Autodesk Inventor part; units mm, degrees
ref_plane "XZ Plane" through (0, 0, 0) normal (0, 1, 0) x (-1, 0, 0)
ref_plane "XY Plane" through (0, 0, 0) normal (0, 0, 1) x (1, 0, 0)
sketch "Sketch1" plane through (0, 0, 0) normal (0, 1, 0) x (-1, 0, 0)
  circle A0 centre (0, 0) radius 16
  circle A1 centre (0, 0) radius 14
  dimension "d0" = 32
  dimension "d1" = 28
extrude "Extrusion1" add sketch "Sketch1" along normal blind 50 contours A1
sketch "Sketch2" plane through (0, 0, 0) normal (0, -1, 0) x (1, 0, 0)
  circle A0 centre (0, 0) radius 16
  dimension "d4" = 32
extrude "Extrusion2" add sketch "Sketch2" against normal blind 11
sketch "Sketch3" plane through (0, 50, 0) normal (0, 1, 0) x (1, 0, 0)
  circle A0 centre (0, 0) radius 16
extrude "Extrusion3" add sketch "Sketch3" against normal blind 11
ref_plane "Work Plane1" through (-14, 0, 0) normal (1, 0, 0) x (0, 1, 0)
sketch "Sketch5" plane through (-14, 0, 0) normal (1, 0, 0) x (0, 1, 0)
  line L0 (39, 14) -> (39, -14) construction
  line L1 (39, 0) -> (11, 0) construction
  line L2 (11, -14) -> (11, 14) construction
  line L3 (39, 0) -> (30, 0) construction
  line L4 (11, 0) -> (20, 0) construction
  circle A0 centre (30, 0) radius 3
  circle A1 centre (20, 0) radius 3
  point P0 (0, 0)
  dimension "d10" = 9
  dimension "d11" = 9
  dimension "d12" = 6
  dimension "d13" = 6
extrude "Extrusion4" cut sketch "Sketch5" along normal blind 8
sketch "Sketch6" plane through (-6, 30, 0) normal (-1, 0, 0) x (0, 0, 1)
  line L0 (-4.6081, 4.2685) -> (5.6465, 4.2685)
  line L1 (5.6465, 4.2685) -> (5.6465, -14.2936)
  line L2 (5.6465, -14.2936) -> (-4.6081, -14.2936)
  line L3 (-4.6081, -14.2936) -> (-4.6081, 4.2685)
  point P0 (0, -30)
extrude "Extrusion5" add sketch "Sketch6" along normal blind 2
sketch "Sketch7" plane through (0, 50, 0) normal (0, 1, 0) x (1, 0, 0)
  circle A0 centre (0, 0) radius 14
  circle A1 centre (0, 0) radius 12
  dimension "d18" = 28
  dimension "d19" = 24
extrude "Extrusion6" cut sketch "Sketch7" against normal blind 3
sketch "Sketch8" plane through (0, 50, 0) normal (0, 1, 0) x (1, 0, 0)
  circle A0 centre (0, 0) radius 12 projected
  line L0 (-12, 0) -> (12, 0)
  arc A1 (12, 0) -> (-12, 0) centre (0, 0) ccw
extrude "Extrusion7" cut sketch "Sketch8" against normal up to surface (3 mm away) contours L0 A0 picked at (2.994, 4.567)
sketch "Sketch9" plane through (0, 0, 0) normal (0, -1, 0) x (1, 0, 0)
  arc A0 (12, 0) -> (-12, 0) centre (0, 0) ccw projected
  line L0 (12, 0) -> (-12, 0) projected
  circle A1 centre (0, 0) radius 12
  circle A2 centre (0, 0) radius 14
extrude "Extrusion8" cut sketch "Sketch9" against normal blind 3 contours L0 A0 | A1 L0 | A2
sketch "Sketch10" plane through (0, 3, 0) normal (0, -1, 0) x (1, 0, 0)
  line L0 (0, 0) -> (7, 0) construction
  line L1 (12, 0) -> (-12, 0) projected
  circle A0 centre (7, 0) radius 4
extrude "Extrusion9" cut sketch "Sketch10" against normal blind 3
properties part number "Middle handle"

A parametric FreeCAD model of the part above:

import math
import FreeCAD as App
import Part
import Sketcher
from FreeCAD import Vector
Q = App.Units.Quantity

doc = App.newDocument("Part")
params = doc.addObject("Spreadsheet::Sheet", "Params")
for row, (alias, value) in enumerate([
    ("sketch1_diameter", "28 mm"),
    ("pad1_length", "50 mm"),
    ("sketch2_diameter", "32 mm"),
    ("pad2_length", "11 mm"),
    ("sketch3_diameter", "32 mm"),
    ("pad3_length", "11 mm"),
    ("sketch4_diameter", "6 mm"),
    ("pocket1_length", "8 mm"),
    ("pad4_length", "2 mm"),
    ("sketch6_diameter", "28 mm"),
    ("sketch6_diameter2", "24 mm"),
    ("pocket2_length", "3 mm"),
    ("sketch7_radius", "12 mm"),
    ("pocket3_length", "3 mm"),
    ("sketch8_diameter", "28 mm"),
    ("pocket4_length", "3 mm"),
    ("sketch9_diameter", "8 mm"),
    ("pocket5_length", "3 mm"),
], start=1):
    params.set(f"A{row}", alias)
    params.set(f"B{row}", "=" + value)
    params.setAlias(f"B{row}", alias)

body = doc.addObject("PartDesign::Body", "Body")

# Sketch on XZ plane
sketch1 = body.newObject("Sketcher::SketchObject", "Sketch")
sketch1.AttachmentSupport = (doc.getObject("XZ_Plane"), [""])
sketch1.MapMode = "FlatFace"
sketch1.addGeometry(Part.Circle(Vector(0, 0, 0), Vector(0, 0, 1), 14), False)
sketch1.addConstraint(Sketcher.Constraint("Coincident", 0, 3, -1, 1))
sketch1.addConstraint(Sketcher.Constraint("Diameter", 0, Q("28 mm")))
sketch1.setExpression("Constraints[1]", "Params.sketch1_diameter")
pad1 = body.newObject("PartDesign::Pad", "Pad")
pad1.Profile = sketch1
pad1.setExpression("Length", "Params.pad1_length")
pad1.Reversed = True

# Sketch on XZ plane
sketch2 = body.newObject("Sketcher::SketchObject", "Sketch001")
sketch2.AttachmentSupport = (doc.getObject("XZ_Plane"), [""])
sketch2.MapMode = "FlatFace"
sketch2.addGeometry(Part.Circle(Vector(0, 0, 0), Vector(0, 0, 1), 16), False)
sketch2.addConstraint(Sketcher.Constraint("Coincident", 0, 3, -1, 1))
sketch2.addConstraint(Sketcher.Constraint("Diameter", 0, Q("32 mm")))
sketch2.setExpression("Constraints[1]", "Params.sketch2_diameter")
pad2 = body.newObject("PartDesign::Pad", "Pad001")
pad2.Profile = sketch2
pad2.setExpression("Length", "Params.pad2_length")
pad2.Reversed = True

# Sketch on XZ plane
sketch3 = body.newObject("Sketcher::SketchObject", "Sketch002")
sketch3.AttachmentSupport = (doc.getObject("XZ_Plane"), [""])
sketch3.MapMode = "FlatFace"
sketch3.AttachmentOffset = App.Placement(Vector(0, 0, -50), App.Rotation())
sketch3.addGeometry(Part.Circle(Vector(0, 0, 0), Vector(0, 0, 1), 16), False)
sketch3.addConstraint(Sketcher.Constraint("Coincident", 0, 3, -1, 1))
sketch3.addConstraint(Sketcher.Constraint("Diameter", 0, Q("32 mm")))
sketch3.setExpression("Constraints[1]", "Params.sketch3_diameter")
pad3 = body.newObject("PartDesign::Pad", "Pad002")
pad3.Profile = sketch3
pad3.setExpression("Length", "Params.pad3_length")

# Sketch on YZ plane
sketch4 = body.newObject("Sketcher::SketchObject", "Sketch003")
sketch4.AttachmentSupport = (doc.getObject("YZ_Plane"), [""])
sketch4.MapMode = "FlatFace"
sketch4.AttachmentOffset = App.Placement(Vector(0, 0, -14), App.Rotation())
sketch4.addGeometry(Part.Circle(Vector(30, 0, 0), Vector(0, 0, 1), 3), False)
sketch4.addGeometry(Part.Circle(Vector(20, 0, 0), Vector(0, 0, 1), 3), False)
sketch4.addConstraint(Sketcher.Constraint("Equal", 0, 1))
sketch4.addConstraint(Sketcher.Constraint("PointOnObject", 0, 3, -1))
sketch4.addConstraint(Sketcher.Constraint("PointOnObject", 1, 3, -1))
sketch4.addConstraint(Sketcher.Constraint("Diameter", 0, Q("6 mm")))
sketch4.addConstraint(Sketcher.Constraint("DistanceX", -1, 1, 0, 3, Q("30 mm")))
sketch4.addConstraint(Sketcher.Constraint("DistanceX", -1, 1, 1, 3, Q("20 mm")))
sketch4.setExpression("Constraints[3]", "Params.sketch4_diameter")
pocket1 = body.newObject("PartDesign::Pocket", "Pocket")
pocket1.Profile = sketch4
pocket1.setExpression("Length", "Params.pocket1_length")
pocket1.Reversed = True

# Sketch on YZ plane
sketch5 = body.newObject("Sketcher::SketchObject", "Sketch004")
sketch5.AttachmentSupport = (doc.getObject("YZ_Plane"), [""])
sketch5.MapMode = "FlatFace"
sketch5.AttachmentOffset = App.Placement(Vector(0, 0, -6), App.Rotation())
sketch5.addGeometry(Part.LineSegment(Vector(34, 6, 0), Vector(34, -5, 0)), False)
sketch5.addGeometry(Part.LineSegment(Vector(34, -5, 0), Vector(16, -5, 0)), False)
sketch5.addGeometry(Part.LineSegment(Vector(16, -5, 0), Vector(16, 6, 0)), False)
sketch5.addGeometry(Part.LineSegment(Vector(16, 6, 0), Vector(34, 6, 0)), False)
sketch5.addConstraint(Sketcher.Constraint("Coincident", 0, 2, 1, 1))
sketch5.addConstraint(Sketcher.Constraint("Coincident", 1, 2, 2, 1))
sketch5.addConstraint(Sketcher.Constraint("Coincident", 2, 2, 3, 1))
sketch5.addConstraint(Sketcher.Constraint("Coincident", 3, 2, 0, 1))
sketch5.addConstraint(Sketcher.Constraint("Vertical", 0))
sketch5.addConstraint(Sketcher.Constraint("Horizontal", 1))
sketch5.addConstraint(Sketcher.Constraint("Vertical", 2))
sketch5.addConstraint(Sketcher.Constraint("Horizontal", 3))
sketch5.addConstraint(Sketcher.Constraint("DistanceX", 1, 2, 1, 1, Q("18.562 mm")))
sketch5.addConstraint(Sketcher.Constraint("DistanceY", 0, 2, 0, 1, Q("10.2546 mm")))
sketch5.addConstraint(Sketcher.Constraint("DistanceY", 0, 2, -1, 1, Q("4.608 mm")))
sketch5.addConstraint(Sketcher.Constraint("DistanceX", -1, 1, 0, 2, Q("34.2685 mm")))
pad4 = body.newObject("PartDesign::Pad", "Pad003")
pad4.Profile = sketch5
pad4.setExpression("Length", "Params.pad4_length")
pad4.Reversed = True

# Sketch on XZ plane
sketch6 = body.newObject("Sketcher::SketchObject", "Sketch005")
sketch6.AttachmentSupport = (doc.getObject("XZ_Plane"), [""])
sketch6.MapMode = "FlatFace"
sketch6.AttachmentOffset = App.Placement(Vector(0, 0, -50), App.Rotation())
sketch6.addGeometry(Part.Circle(Vector(0, 0, 0), Vector(0, 0, 1), 14), False)
sketch6.addGeometry(Part.Circle(Vector(0, 0, 0), Vector(0, 0, 1), 12), False)
sketch6.addConstraint(Sketcher.Constraint("Coincident", 0, 3, -1, 1))
sketch6.addConstraint(Sketcher.Constraint("Coincident", 1, 3, -1, 1))
sketch6.addConstraint(Sketcher.Constraint("Diameter", 0, Q("28 mm")))
sketch6.addConstraint(Sketcher.Constraint("Diameter", 1, Q("24 mm")))
sketch6.setExpression("Constraints[2]", "Params.sketch6_diameter")
sketch6.setExpression("Constraints[3]", "Params.sketch6_diameter2")
pocket2 = body.newObject("PartDesign::Pocket", "Pocket001")
pocket2.Profile = sketch6
pocket2.setExpression("Length", "Params.pocket2_length")
pocket2.Reversed = True

# Sketch on XZ plane
sketch7 = body.newObject("Sketcher::SketchObject", "Sketch006")
sketch7.AttachmentSupport = (doc.getObject("XZ_Plane"), [""])
sketch7.MapMode = "FlatFace"
sketch7.AttachmentOffset = App.Placement(Vector(0, 0, -50), App.Rotation())
sketch7.addGeometry(Part.LineSegment(Vector(-12, 0, 0), Vector(12, 0, 0)), False)
sketch7.addGeometry(Part.ArcOfCircle(Part.Circle(Vector(0, 0, 0), Vector(0, 0, 1), 12), math.radians(180), math.radians(360)), False)
sketch7.addConstraint(Sketcher.Constraint("Coincident", 0, 1, 1, 1))
sketch7.addConstraint(Sketcher.Constraint("Coincident", 1, 2, 0, 2))
sketch7.addConstraint(Sketcher.Constraint("Horizontal", 0))
sketch7.addConstraint(Sketcher.Constraint("Coincident", 1, 3, -1, 1))
sketch7.addConstraint(Sketcher.Constraint("PointOnObject", 0, 1, -1))
sketch7.addConstraint(Sketcher.Constraint("Radius", 1, Q("12 mm")))
sketch7.setExpression("Constraints[5]", "Params.sketch7_radius")
pocket3 = body.newObject("PartDesign::Pocket", "Pocket002")
pocket3.Profile = sketch7
pocket3.setExpression("Length", "Params.pocket3_length")
pocket3.Reversed = True

# Sketch on XZ plane
sketch8 = body.newObject("Sketcher::SketchObject", "Sketch007")
sketch8.AttachmentSupport = (doc.getObject("XZ_Plane"), [""])
sketch8.MapMode = "FlatFace"
sketch8.addGeometry(Part.Circle(Vector(0, 0, 0), Vector(0, 0, 1), 14), False)
sketch8.addConstraint(Sketcher.Constraint("Coincident", 0, 3, -1, 1))
sketch8.addConstraint(Sketcher.Constraint("Diameter", 0, Q("28 mm")))
sketch8.setExpression("Constraints[1]", "Params.sketch8_diameter")
pocket4 = body.newObject("PartDesign::Pocket", "Pocket003")
pocket4.Profile = sketch8
pocket4.setExpression("Length", "Params.pocket4_length")

# Sketch on XZ plane
sketch9 = body.newObject("Sketcher::SketchObject", "Sketch008")
sketch9.AttachmentSupport = (doc.getObject("XZ_Plane"), [""])
sketch9.MapMode = "FlatFace"
sketch9.AttachmentOffset = App.Placement(Vector(0, 0, -3), App.Rotation())
sketch9.addGeometry(Part.Circle(Vector(7, 0, 0), Vector(0, 0, 1), 4), False)
sketch9.addConstraint(Sketcher.Constraint("PointOnObject", 0, 3, -1))
sketch9.addConstraint(Sketcher.Constraint("Diameter", 0, Q("8 mm")))
sketch9.addConstraint(Sketcher.Constraint("DistanceX", -1, 1, 0, 3, Q("7 mm")))
sketch9.setExpression("Constraints[1]", "Params.sketch9_diameter")
pocket5 = body.newObject("PartDesign::Pocket", "Pocket004")
pocket5.Profile = sketch9
pocket5.setExpression("Length", "Params.pocket5_length")

doc.recompute()
